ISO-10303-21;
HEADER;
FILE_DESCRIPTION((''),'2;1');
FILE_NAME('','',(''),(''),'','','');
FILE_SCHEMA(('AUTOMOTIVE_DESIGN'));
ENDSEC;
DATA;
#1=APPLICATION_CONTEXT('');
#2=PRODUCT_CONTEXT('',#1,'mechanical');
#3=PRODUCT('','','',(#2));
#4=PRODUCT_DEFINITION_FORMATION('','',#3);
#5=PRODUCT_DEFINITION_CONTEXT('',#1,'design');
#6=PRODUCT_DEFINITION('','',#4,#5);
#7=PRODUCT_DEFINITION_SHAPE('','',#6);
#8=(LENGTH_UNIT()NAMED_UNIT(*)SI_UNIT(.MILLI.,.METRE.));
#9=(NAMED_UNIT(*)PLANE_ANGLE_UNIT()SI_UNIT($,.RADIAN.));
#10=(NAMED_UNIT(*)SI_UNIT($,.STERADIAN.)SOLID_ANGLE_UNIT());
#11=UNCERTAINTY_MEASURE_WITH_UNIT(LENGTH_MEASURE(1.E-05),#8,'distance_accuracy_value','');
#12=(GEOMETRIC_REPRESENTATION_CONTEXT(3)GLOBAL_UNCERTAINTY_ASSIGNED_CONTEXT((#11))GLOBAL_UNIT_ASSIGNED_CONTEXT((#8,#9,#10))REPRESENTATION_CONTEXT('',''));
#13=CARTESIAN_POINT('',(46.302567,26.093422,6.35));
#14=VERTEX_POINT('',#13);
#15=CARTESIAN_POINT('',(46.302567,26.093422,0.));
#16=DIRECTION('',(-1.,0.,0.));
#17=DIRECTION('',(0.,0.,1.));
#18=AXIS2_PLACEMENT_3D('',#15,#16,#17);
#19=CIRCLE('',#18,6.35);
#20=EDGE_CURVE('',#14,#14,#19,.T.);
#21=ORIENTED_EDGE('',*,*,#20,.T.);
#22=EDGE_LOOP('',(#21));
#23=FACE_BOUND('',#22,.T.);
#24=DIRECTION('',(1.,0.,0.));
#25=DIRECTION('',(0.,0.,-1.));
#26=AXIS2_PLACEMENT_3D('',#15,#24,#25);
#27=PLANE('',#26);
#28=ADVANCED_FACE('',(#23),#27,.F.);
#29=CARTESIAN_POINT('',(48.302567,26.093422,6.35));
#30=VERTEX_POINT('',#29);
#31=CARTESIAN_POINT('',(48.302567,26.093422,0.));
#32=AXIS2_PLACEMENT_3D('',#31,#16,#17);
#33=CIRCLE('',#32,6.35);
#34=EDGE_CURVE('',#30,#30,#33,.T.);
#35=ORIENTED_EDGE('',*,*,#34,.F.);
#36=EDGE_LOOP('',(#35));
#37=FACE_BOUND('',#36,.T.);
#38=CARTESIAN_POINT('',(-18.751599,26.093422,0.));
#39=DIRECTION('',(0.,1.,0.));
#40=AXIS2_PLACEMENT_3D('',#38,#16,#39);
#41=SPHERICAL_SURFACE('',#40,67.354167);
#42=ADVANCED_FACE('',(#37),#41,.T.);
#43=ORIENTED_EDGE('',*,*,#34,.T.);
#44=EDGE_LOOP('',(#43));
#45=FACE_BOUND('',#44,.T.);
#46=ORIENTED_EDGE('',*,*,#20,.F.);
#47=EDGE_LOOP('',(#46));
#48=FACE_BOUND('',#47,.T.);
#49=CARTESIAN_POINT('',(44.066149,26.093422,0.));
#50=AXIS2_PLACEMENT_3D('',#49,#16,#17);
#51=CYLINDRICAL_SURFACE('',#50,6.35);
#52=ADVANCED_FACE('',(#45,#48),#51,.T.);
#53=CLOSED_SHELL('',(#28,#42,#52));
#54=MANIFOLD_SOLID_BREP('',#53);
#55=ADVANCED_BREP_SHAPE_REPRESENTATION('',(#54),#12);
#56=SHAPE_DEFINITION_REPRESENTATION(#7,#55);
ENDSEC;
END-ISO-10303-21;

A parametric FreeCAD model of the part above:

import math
import FreeCAD as App
import Part
import Sketcher

V = App.Vector

doc = App.newDocument("Part")
body = doc.addObject("PartDesign::Body", "Body")

# Sketch on XY plane
sketch1 = body.newObject("Sketcher::SketchObject", "Sketch")
sketch1.AttachmentSupport = (doc.getObject("XY_Plane"), [""])
sketch1.MapMode = "FlatFace"
sketch1.addGeometry(Part.LineSegment(V(46.3, 32.4, 0), V(46.3, 26.1, 0)), False)
sketch1.addGeometry(Part.LineSegment(V(46.3, 26.1, 0), V(48.6, 26.1, 0)), False)
sketch1.addGeometry(Part.ArcOfCircle(Part.Circle(V(-18.8, 26.1, 0), V(0, 0, 1), 67.4), math.radians(0), math.radians(5.41)), False)
sketch1.addGeometry(Part.LineSegment(V(48.3, 32.4, 0), V(46.3, 32.4, 0)), False)
sketch1.addGeometry(Part.LineSegment(V(-18.8, 26.1, 0), V(48.6, 26.1, 0)), True)  # axis
sketch1.addConstraint(Sketcher.Constraint("Coincident", 0, 2, 1, 1))
sketch1.addConstraint(Sketcher.Constraint("Coincident", 1, 2, 2, 1))
sketch1.addConstraint(Sketcher.Constraint("Coincident", 2, 2, 3, 1))
sketch1.addConstraint(Sketcher.Constraint("Coincident", 3, 2, 0, 1))
sketch1.addConstraint(Sketcher.Constraint("Vertical", 0))
sketch1.addConstraint(Sketcher.Constraint("Horizontal", 1))
sketch1.addConstraint(Sketcher.Constraint("Horizontal", 3))
sketch1.addConstraint(Sketcher.Constraint("Horizontal", 4))
sketch1.addConstraint(Sketcher.Constraint("Coincident", 4, 1, 2, 3))
sketch1.addConstraint(Sketcher.Constraint("Coincident", 4, 2, 1, 2))
sketch1.addConstraint(Sketcher.Constraint("DistanceX", 3, 2, 3, 1, 2.0))
sketch1.addConstraint(Sketcher.Constraint("DistanceX", 1, 1, 1, 2, 2.3))
sketch1.addConstraint(Sketcher.Constraint("DistanceY", 0, 2, 0, 1, 6.35))
sketch1.addConstraint(Sketcher.Constraint("DistanceX", 2, 3, -1, 1, 18.7516))
sketch1.addConstraint(Sketcher.Constraint("DistanceY", -1, 1, 2, 3, 26.093422))
revolution = body.newObject("PartDesign::Revolution", "Revolution")
revolution.Profile = sketch1
revolution.ReferenceAxis = (sketch1, ["Axis0"])
revolution.Angle = 360

doc.recompute()
